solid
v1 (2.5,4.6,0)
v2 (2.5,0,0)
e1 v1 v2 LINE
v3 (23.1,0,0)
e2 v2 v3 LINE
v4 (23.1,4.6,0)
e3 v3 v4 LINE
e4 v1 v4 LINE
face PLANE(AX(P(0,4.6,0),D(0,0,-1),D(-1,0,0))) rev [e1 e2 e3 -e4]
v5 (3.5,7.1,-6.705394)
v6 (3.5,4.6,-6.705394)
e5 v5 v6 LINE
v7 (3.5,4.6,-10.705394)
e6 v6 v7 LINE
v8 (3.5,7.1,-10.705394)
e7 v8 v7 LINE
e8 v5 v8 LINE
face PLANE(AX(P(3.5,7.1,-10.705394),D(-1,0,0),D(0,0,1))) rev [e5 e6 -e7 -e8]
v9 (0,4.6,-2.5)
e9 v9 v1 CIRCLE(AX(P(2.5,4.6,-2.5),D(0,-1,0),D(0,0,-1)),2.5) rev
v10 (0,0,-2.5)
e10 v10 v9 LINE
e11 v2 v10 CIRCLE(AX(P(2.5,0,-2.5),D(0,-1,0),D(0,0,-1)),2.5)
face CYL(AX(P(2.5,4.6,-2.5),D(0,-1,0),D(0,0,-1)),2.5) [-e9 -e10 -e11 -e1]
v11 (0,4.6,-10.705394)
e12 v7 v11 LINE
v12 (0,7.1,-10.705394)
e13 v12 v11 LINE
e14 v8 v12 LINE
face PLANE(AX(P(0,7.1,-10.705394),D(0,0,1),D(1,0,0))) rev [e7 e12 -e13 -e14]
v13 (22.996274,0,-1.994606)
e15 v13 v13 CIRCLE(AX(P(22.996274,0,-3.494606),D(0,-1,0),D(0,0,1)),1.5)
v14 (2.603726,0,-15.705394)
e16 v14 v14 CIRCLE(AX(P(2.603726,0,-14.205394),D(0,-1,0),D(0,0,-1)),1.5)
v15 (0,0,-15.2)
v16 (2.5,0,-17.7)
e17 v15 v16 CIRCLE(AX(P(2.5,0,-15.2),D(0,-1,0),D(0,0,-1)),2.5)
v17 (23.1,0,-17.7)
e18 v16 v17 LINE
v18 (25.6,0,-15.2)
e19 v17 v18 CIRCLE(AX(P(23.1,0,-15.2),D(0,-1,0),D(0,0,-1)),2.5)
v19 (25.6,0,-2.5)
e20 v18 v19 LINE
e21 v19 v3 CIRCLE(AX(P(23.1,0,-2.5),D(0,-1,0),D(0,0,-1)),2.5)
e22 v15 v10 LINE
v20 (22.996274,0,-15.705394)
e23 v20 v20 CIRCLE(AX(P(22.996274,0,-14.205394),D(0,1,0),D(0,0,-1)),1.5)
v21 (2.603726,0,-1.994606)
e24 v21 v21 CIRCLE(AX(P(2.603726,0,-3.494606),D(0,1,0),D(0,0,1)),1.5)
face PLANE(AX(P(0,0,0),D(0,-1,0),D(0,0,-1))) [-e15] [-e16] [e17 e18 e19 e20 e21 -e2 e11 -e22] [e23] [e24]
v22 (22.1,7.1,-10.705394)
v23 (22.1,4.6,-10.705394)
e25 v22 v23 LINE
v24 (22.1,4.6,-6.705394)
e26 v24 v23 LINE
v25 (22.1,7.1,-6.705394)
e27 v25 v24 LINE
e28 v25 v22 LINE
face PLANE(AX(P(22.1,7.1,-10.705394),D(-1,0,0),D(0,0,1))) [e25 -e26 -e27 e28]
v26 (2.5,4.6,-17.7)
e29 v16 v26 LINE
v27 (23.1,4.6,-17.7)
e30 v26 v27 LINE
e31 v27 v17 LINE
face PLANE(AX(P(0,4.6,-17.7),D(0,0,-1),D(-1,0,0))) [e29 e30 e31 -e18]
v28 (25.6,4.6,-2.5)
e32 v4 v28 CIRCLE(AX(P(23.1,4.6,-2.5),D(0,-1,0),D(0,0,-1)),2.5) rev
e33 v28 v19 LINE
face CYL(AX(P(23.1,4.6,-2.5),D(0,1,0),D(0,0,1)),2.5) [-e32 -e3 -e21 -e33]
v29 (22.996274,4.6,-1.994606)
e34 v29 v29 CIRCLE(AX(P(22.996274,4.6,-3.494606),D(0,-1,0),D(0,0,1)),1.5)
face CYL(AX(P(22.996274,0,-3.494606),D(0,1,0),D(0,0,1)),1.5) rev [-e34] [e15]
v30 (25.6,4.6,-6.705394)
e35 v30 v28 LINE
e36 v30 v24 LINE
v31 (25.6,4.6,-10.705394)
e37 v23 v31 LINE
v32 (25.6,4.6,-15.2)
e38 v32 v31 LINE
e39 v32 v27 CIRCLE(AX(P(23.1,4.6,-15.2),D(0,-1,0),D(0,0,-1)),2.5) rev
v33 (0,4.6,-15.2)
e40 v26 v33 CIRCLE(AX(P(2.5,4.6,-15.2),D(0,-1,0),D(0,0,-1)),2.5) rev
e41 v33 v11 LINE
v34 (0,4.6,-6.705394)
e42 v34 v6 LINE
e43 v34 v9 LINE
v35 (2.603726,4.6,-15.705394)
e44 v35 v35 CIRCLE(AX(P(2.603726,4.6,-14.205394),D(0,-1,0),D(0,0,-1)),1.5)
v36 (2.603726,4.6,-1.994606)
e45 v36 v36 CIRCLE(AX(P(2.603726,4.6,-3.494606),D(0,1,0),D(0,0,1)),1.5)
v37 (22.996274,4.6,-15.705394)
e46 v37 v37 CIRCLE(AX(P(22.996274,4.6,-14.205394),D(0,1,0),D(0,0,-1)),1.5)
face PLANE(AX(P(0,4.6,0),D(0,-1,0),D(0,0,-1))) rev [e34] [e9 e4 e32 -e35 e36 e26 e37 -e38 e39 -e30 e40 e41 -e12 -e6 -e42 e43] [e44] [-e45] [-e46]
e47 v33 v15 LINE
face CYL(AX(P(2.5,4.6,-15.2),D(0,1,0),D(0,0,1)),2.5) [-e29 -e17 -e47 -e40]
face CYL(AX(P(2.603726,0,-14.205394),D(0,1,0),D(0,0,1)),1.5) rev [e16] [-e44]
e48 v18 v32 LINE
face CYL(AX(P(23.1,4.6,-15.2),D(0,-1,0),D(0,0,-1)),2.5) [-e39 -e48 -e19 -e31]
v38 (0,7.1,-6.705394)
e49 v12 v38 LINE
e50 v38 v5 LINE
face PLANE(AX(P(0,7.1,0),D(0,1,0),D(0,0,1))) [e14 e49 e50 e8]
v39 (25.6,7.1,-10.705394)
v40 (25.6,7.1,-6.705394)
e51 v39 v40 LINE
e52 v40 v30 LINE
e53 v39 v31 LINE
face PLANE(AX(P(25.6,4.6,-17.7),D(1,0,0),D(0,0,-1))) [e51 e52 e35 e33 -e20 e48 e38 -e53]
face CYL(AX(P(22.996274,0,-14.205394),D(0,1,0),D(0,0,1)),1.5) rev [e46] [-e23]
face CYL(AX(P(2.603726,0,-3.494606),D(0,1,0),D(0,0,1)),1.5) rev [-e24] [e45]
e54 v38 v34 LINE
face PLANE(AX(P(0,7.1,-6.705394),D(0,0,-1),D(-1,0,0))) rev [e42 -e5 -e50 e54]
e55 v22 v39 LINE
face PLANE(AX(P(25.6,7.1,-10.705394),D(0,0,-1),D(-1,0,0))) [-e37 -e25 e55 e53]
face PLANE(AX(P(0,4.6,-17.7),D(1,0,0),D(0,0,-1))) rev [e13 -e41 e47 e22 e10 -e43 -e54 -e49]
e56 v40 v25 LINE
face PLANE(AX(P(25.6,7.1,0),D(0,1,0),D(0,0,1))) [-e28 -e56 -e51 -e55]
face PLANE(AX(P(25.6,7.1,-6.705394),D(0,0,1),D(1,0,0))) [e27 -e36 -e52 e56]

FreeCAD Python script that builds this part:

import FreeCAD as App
import Part
import Sketcher

V = App.Vector


def edges_at(feature, points):
    """Names of the edges that pass closest to the given points."""
    edges = feature.Shape.Edges
    near = lambda p: min(range(len(edges)), key=lambda i: edges[i].distToShape(Part.Vertex(*p))[0])
    return sorted({f"Edge{near(p) + 1}" for p in points})

doc = App.newDocument("Part")
body = doc.addObject("PartDesign::Body", "Body")

# Sketch on XZ plane
sketch1 = body.newObject("Sketcher::SketchObject", "Sketch")
sketch1.AttachmentSupport = (doc.getObject("XZ_Plane"), [""])
sketch1.MapMode = "FlatFace"
sketch1.addGeometry([
    Part.LineSegment(V(0, -17.7, 0), V(0, 0, 0)),
    Part.LineSegment(V(0, 0, 0), V(25.6, 0, 0)),
    Part.LineSegment(V(25.6, 0, 0), V(25.6, -17.7, 0)),
    Part.LineSegment(V(25.6, -17.7, 0), V(0, -17.7, 0)),
], False)
sketch1.addConstraint([
    Sketcher.Constraint("Coincident", 0, 2, 1, 1),
    Sketcher.Constraint("Coincident", 1, 2, 2, 1),
    Sketcher.Constraint("Coincident", 2, 2, 3, 1),
    Sketcher.Constraint("Coincident", 3, 2, 0, 1),
    Sketcher.Constraint("Vertical", 0),
    Sketcher.Constraint("Horizontal", 1),
    Sketcher.Constraint("Vertical", 2),
    Sketcher.Constraint("Horizontal", 3),
    Sketcher.Constraint("Coincident", 0, 2, -1, 1),
    Sketcher.Constraint("DistanceX", 1, 1, 1, 2, 25.6),
    Sketcher.Constraint("DistanceY", 0, 1, 0, 2, 17.7),
])
pad1 = body.newObject("PartDesign::Pad", "Pad")
pad1.Profile = sketch1
pad1.Length = 4.6
pad1.Reversed = True
doc.recompute()

fillet = body.newObject("PartDesign::Fillet", "Fillet")
fillet.Base = (pad1, edges_at(pad1, [
    (0, 2.3, -17.7),
    (0, 2.3, 0),
    (25.6, 2.3, 0),
    (25.6, 2.3, -17.7),
]))
fillet.Radius = 2.5

# Sketch on XZ plane
sketch2 = body.newObject("Sketcher::SketchObject", "Sketch001")
sketch2.AttachmentSupport = (doc.getObject("XZ_Plane"), [""])
sketch2.MapMode = "FlatFace"
sketch2.AttachmentOffset = App.Placement(V(0, 0, -4.6), App.Rotation())
sketch2.addGeometry(Part.Circle(V(2.603726, -3.494606, 0), V(0, 0, 1), 1.5), False)
sketch2.addConstraint([
    Sketcher.Constraint("Diameter", 0, 3.0),
    Sketcher.Constraint("DistanceX", -1, 1, 0, 3, 2.603726),
    Sketcher.Constraint("DistanceY", 0, 3, -1, 1, 3.494606),
])
pocket1 = body.newObject("PartDesign::Pocket", "Pocket")
pocket1.Profile = sketch2
pocket1.Type = "ThroughAll"
pocket1.Reversed = True
doc.recompute()

datumplane = body.newObject("PartDesign::Plane", "DatumPlane")
datumplane.AttachmentSupport = (doc.getObject("XY_Plane"), [""])
datumplane.MapMode = "FlatFace"
datumplane.AttachmentOffset = App.Placement(V(0, 0, -8.85), App.Rotation())
mirrored = body.newObject("PartDesign::Mirrored", "Mirrored")
mirrored.Originals = [pocket1]
mirrored.MirrorPlane = (datumplane, [""])
body.Tip = mirrored
doc.recompute()

datumplane2 = body.newObject("PartDesign::Plane", "DatumPlane001")
datumplane2.AttachmentSupport = (doc.getObject("YZ_Plane"), [""])
datumplane2.MapMode = "FlatFace"
datumplane2.AttachmentOffset = App.Placement(V(0, 0, 12.8), App.Rotation())
mirrored2 = body.newObject("PartDesign::Mirrored", "Mirrored001")
mirrored2.Originals = [pocket1]
mirrored2.MirrorPlane = (datumplane2, [""])
body.Tip = mirrored2

# Sketch on XZ plane
sketch3 = body.newObject("Sketcher::SketchObject", "Sketch002")
sketch3.AttachmentSupport = (doc.getObject("XZ_Plane"), [""])
sketch3.MapMode = "FlatFace"
sketch3.AttachmentOffset = App.Placement(V(0, 0, -4.6), App.Rotation())
sketch3.addGeometry(Part.Circle(V(22.996274, -14.205394, 0), V(0, 0, 1), 1.5), False)
sketch3.addConstraint([
    Sketcher.Constraint("Diameter", 0, 3.0),
    Sketcher.Constraint("DistanceX", -1, 1, 0, 3, 22.996274),
    Sketcher.Constraint("DistanceY", 0, 3, -1, 1, 14.205394),
])
pocket2 = body.newObject("PartDesign::Pocket", "Pocket001")
pocket2.Profile = sketch3
pocket2.Type = "ThroughAll"
pocket2.Reversed = True

# Sketch on XZ plane
sketch4 = body.newObject("Sketcher::SketchObject", "Sketch003")
sketch4.AttachmentSupport = (doc.getObject("XZ_Plane"), [""])
sketch4.MapMode = "FlatFace"
sketch4.AttachmentOffset = App.Placement(V(0, 0, -4.6), App.Rotation())
sketch4.addGeometry([
    Part.LineSegment(V(0, -10.705394, 0), V(0, -6.705394, 0)),
    Part.LineSegment(V(0, -6.705394, 0), V(3.5, -6.705394, 0)),
    Part.LineSegment(V(3.5, -6.705394, 0), V(3.5, -10.705394, 0)),
    Part.LineSegment(V(3.5, -10.705394, 0), V(0, -10.705394, 0)),
], False)
sketch4.addConstraint([
    Sketcher.Constraint("Coincident", 0, 2, 1, 1),
    Sketcher.Constraint("Coincident", 1, 2, 2, 1),
    Sketcher.Constraint("Coincident", 2, 2, 3, 1),
    Sketcher.Constraint("Coincident", 3, 2, 0, 1),
    Sketcher.Constraint("Vertical", 0),
    Sketcher.Constraint("Horizontal", 1),
    Sketcher.Constraint("Vertical", 2),
    Sketcher.Constraint("Horizontal", 3),
    Sketcher.Constraint("PointOnObject", 0, 2, -2),
    Sketcher.Constraint("DistanceY", 0, 1, 0, 2, 4.0),
    Sketcher.Constraint("DistanceX", 1, 1, 1, 2, 3.5),
    Sketcher.Constraint("DistanceY", 0, 2, -1, 1, 6.705394),
])
pad2 = body.newObject("PartDesign::Pad", "Pad001")
pad2.Profile = sketch4
pad2.Length = 2.5
pad2.Reversed = True
doc.recompute()

datumplane3 = body.newObject("PartDesign::Plane", "DatumPlane002")
datumplane3.AttachmentSupport = (doc.getObject("YZ_Plane"), [""])
datumplane3.MapMode = "FlatFace"
datumplane3.AttachmentOffset = App.Placement(V(0, 0, 12.8), App.Rotation())
mirrored3 = body.newObject("PartDesign::Mirrored", "Mirrored002")
mirrored3.Originals = [pad2]
mirrored3.MirrorPlane = (datumplane3, [""])
body.Tip = mirrored3

doc.recompute()
